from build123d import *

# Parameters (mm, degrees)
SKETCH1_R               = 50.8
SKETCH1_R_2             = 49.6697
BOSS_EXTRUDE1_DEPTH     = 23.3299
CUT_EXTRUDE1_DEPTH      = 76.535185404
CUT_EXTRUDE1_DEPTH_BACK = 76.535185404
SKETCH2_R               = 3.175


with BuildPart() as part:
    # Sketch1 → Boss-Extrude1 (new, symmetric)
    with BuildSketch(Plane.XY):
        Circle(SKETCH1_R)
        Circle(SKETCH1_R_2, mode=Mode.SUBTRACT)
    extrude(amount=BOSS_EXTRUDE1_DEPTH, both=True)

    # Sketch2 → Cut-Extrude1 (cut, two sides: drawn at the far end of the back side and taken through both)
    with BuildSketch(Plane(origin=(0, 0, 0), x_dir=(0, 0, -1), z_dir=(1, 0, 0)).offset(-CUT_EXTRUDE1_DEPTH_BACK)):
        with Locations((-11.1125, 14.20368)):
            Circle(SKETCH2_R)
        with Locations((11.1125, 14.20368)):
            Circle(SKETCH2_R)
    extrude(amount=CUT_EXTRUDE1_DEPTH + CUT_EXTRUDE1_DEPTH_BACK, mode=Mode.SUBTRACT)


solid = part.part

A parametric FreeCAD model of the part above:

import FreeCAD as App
import Part
import Sketcher

V = App.Vector
Q = App.Units.Quantity

doc = App.newDocument("Part")
params = doc.addObject("Spreadsheet::Sheet", "Params")
for row, (alias, value) in enumerate([
    ("sketch1_diameter", "4 in"),
    ("sketch1_diameter2", "3.911 in"),
    ("pad1_length", "1.837 in"),
    ("sketch2_diameter", "0.25 in"),
], start=1):
    params.set(f"A{row}", alias)
    params.set(f"B{row}", "=" + value)
    params.setAlias(f"B{row}", alias)

body = doc.addObject("PartDesign::Body", "Body")

sketch1 = doc.addObject("Sketcher::SketchObject", "Sketch")
body.addObject(sketch1)
sketch1.AttachmentSupport = (doc.XY_Plane, [""])
sketch1.MapMode = "FlatFace"
sketch1.addGeometry(Part.Circle(V(0, 0, 0), V(0, 0, 1), 51), False)
sketch1.addGeometry(Part.Circle(V(0, 0, 0), V(0, 0, 1), 50), False)
sketch1.addConstraint(Sketcher.Constraint("Coincident", 0, 3, -1, 1))
sketch1.addConstraint(Sketcher.Constraint("Coincident", 1, 3, -1, 1))
sketch1.addConstraint(Sketcher.Constraint("Diameter", 0, Q("4 in")))
sketch1.addConstraint(Sketcher.Constraint("Diameter", 1, Q("3.911 in")))
sketch1.setExpression("Constraints[2]", "Params.sketch1_diameter")
sketch1.setExpression("Constraints[3]", "Params.sketch1_diameter2")
pad1 = doc.addObject("PartDesign::Pad", "Pad")
body.addObject(pad1)
pad1.Profile = sketch1
pad1.setExpression("Length", "Params.pad1_length")
pad1.Midplane = True

sketch2 = doc.addObject("Sketcher::SketchObject", "Sketch001")
body.addObject(sketch2)
sketch2.AttachmentSupport = (doc.YZ_Plane, [""])
sketch2.MapMode = "FlatFace"
sketch2.addGeometry(Part.Circle(V(14.2, 11.1, 0), V(0, 0, 1), 3.2), False)
sketch2.addGeometry(Part.Circle(V(14.2, -11.1, 0), V(0, 0, 1), 3.2), False)
sketch2.addConstraint(Sketcher.Constraint("Equal", 0, 1))
sketch2.addConstraint(Sketcher.Constraint("Symmetric", 0, 3, 1, 3, -1))
sketch2.addConstraint(Sketcher.Constraint("Diameter", 0, Q("0.25 in")))
sketch2.addConstraint(Sketcher.Constraint("DistanceY", -1, 1, 0, 3, Q("0.4375 in")))
sketch2.addConstraint(Sketcher.Constraint("DistanceX", -1, 1, 0, 3, Q("0.5592 in")))
sketch2.setExpression("Constraints[2]", "Params.sketch2_diameter")
pocket1 = doc.addObject("PartDesign::Pocket", "Pocket")
body.addObject(pocket1)
pocket1.Profile = sketch2
pocket1.Type = "ThroughAll"
pocket1.Midplane = True

doc.recompute()
